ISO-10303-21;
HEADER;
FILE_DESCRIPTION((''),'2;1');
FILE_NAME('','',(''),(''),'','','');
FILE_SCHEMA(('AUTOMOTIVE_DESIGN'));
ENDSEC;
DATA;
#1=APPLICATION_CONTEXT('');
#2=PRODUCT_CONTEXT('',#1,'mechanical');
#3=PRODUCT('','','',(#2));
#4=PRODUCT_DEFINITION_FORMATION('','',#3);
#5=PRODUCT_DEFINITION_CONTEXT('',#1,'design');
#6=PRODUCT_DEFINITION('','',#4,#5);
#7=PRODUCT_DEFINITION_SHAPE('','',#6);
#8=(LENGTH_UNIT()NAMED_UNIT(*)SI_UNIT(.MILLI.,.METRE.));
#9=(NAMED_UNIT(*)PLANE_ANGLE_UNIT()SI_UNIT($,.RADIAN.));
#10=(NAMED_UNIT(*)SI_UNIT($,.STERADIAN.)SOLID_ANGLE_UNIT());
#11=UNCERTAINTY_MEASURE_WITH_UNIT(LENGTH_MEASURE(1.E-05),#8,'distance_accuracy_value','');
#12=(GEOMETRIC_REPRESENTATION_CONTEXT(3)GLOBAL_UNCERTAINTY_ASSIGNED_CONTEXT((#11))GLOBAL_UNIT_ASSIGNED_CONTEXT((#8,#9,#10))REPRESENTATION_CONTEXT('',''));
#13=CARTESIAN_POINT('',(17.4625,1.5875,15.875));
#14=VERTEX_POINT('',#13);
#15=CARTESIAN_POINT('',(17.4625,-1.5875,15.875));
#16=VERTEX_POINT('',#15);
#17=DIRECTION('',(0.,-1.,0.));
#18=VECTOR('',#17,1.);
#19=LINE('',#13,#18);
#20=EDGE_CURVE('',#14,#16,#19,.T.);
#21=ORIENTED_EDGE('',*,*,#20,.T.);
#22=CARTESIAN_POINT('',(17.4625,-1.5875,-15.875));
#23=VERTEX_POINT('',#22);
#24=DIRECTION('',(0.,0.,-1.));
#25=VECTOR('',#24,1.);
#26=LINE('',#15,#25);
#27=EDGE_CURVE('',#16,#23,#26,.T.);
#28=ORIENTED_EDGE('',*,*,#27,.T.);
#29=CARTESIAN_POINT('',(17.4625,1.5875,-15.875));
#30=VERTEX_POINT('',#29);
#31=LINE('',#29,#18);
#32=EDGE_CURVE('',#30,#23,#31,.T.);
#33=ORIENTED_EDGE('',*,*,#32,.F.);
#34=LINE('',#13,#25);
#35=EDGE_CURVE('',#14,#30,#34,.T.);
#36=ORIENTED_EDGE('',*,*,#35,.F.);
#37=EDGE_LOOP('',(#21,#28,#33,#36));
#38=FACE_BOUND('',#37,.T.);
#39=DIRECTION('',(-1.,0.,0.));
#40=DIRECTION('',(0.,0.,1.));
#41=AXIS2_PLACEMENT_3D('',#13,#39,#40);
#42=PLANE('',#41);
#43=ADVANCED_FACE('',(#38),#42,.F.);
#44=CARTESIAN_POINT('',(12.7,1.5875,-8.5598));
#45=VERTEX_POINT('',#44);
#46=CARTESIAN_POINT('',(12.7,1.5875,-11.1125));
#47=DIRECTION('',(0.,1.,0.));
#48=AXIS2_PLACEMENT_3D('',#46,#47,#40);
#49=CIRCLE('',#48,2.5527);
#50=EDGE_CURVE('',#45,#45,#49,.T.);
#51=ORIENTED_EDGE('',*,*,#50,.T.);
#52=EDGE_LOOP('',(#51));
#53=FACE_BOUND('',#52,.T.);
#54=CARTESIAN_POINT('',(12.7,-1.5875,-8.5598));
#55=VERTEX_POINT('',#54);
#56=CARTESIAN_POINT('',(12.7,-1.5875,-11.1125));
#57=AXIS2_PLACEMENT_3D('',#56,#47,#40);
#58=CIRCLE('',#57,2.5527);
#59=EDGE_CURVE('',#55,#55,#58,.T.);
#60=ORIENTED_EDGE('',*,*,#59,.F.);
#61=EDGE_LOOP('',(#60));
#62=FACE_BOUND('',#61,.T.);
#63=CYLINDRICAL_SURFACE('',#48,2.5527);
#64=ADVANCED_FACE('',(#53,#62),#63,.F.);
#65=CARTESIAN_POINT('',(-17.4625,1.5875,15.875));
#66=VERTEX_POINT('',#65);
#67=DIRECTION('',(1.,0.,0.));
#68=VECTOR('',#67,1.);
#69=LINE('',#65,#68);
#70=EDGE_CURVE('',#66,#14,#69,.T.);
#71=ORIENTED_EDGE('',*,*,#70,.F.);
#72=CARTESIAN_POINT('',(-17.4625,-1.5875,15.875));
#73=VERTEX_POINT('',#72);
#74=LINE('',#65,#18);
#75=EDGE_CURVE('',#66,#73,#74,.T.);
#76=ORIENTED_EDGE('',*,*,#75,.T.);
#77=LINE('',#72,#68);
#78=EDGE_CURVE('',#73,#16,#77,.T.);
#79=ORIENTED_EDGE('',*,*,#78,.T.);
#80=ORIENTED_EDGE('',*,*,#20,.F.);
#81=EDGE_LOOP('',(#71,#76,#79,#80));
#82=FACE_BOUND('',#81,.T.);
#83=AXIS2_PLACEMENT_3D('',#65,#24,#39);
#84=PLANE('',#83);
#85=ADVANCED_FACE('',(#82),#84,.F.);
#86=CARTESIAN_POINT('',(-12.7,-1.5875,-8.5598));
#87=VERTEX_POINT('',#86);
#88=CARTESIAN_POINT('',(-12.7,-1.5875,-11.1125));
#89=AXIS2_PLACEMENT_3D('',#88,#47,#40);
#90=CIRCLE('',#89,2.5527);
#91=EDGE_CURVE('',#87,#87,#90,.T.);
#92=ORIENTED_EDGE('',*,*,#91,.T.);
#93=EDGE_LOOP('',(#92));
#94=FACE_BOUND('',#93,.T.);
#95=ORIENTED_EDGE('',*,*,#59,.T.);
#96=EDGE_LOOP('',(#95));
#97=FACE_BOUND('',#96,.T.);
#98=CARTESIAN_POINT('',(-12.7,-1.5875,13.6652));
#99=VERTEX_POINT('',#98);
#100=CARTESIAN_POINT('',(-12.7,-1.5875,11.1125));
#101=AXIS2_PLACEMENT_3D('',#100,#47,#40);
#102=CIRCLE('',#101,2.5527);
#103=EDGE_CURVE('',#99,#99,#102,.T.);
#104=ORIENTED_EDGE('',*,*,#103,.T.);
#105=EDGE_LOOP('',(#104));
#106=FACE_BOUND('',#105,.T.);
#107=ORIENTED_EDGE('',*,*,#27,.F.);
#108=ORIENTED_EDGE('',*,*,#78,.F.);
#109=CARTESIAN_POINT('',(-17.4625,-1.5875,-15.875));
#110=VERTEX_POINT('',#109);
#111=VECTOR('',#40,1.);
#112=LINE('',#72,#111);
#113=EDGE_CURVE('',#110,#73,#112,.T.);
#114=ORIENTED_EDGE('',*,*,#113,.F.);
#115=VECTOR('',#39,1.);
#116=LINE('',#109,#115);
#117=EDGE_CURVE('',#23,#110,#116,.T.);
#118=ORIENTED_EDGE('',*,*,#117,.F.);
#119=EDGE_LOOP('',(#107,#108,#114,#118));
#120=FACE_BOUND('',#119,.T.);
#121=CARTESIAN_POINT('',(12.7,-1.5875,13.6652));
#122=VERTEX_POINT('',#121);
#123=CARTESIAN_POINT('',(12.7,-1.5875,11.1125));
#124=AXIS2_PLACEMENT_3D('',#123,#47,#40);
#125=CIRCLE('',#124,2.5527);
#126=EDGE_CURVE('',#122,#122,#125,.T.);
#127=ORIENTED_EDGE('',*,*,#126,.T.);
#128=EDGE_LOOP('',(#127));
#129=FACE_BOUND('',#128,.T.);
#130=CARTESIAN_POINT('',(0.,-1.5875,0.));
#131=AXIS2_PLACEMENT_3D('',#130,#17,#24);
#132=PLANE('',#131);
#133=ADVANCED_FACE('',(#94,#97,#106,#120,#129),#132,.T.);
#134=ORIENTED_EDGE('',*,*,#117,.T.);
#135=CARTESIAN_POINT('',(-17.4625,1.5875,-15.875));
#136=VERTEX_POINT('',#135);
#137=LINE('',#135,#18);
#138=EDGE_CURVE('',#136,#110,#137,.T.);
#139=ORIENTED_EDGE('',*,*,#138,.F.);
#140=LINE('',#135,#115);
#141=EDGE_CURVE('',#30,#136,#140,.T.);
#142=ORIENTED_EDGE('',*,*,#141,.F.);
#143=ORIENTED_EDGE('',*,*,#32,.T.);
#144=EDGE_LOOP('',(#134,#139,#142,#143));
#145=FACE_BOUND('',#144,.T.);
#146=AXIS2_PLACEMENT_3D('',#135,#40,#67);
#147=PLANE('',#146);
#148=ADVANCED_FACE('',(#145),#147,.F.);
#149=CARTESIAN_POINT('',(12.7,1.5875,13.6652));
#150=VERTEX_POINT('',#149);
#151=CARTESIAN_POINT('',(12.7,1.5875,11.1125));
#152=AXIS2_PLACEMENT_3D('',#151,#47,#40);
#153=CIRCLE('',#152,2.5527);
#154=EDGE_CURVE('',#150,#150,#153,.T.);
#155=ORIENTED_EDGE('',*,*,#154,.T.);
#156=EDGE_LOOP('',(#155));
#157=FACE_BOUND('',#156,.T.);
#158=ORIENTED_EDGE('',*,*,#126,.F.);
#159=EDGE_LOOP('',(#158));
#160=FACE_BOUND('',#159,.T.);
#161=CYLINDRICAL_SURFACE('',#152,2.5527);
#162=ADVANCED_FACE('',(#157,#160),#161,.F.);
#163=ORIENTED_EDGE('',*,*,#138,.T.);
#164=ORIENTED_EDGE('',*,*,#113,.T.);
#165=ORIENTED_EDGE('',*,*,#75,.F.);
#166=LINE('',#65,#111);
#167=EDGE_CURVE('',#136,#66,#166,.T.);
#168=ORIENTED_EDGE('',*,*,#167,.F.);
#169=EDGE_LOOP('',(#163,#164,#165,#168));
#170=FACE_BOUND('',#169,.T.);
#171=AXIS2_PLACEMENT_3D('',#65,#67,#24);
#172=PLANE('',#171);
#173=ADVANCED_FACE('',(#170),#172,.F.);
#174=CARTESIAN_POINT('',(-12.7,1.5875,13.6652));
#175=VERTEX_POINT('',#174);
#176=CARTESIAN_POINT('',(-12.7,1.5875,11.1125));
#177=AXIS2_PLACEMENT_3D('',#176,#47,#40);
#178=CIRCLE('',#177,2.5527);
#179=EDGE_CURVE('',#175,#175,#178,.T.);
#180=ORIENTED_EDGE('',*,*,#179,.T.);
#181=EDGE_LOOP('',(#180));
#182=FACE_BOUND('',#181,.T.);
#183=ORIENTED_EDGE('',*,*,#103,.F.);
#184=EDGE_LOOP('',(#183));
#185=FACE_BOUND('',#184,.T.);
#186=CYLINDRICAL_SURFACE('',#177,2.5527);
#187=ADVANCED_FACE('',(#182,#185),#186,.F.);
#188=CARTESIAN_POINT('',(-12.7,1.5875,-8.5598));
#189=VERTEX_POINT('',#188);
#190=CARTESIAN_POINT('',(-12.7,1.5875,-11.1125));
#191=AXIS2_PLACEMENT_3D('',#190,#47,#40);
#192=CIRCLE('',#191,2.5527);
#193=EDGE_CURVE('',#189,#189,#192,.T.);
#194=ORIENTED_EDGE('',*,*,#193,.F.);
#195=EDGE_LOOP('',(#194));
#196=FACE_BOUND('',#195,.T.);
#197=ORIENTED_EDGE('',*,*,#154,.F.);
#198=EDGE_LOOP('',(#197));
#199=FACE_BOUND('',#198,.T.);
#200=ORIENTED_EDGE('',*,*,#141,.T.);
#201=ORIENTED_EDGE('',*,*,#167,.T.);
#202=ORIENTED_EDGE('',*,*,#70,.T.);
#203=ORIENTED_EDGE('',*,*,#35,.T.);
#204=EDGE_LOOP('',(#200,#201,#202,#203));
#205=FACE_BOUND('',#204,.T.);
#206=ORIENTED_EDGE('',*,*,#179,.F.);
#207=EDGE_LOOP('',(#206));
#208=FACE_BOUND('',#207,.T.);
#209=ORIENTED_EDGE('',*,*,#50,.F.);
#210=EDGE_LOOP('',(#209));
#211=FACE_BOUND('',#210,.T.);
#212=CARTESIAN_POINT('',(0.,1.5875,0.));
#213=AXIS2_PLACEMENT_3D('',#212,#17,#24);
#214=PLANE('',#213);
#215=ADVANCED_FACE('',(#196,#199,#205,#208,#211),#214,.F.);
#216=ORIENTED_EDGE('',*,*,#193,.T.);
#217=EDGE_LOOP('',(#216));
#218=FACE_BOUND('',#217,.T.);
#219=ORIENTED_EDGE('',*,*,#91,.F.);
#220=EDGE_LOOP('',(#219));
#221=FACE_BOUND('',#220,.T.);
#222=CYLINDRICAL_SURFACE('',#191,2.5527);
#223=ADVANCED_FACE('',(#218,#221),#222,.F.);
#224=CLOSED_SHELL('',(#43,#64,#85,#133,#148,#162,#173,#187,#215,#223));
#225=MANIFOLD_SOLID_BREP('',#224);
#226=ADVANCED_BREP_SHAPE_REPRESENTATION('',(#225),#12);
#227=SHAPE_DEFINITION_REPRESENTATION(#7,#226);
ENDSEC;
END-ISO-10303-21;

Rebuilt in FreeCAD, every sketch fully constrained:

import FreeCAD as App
import Part
import Sketcher
Q = App.Units.Quantity

doc = App.newDocument("Part")
params = doc.addObject("Spreadsheet::Sheet", "Params")
for row, (alias, value) in enumerate([
    ("sketch1_height", "1.25 in"),
    ("sketch1_width", "1.375 in"),
    ("pad1_length", "0.125 in"),
    ("sketch2_diameter", "0.201 in"),
    ("hole_diameter", "0.201 in"),
], start=1):
    params.set(f"A{row}", alias)
    params.set(f"B{row}", "=" + value)
    params.setAlias(f"B{row}", alias)

body = doc.addObject("PartDesign::Body", "Body")

# Sketch on XZ plane
sketch1 = body.newObject("Sketcher::SketchObject", "Sketch")
sketch1.AttachmentSupport = (doc.getObject("XZ_Plane"), [""])
sketch1.MapMode = "FlatFace"
sketch1.addGeometry([
    Part.LineSegment(App.Vector(-17, -16, 0), App.Vector(-17, 16, 0)),
    Part.LineSegment(App.Vector(-17, 16, 0), App.Vector(17, 16, 0)),
    Part.LineSegment(App.Vector(17, 16, 0), App.Vector(17, -16, 0)),
    Part.LineSegment(App.Vector(17, -16, 0), App.Vector(-17, -16, 0)),
], False)
sketch1.addConstraint([
    Sketcher.Constraint("Coincident", 0, 2, 1, 1),
    Sketcher.Constraint("Coincident", 1, 2, 2, 1),
    Sketcher.Constraint("Coincident", 2, 2, 3, 1),
    Sketcher.Constraint("Coincident", 3, 2, 0, 1),
    Sketcher.Constraint("Vertical", 0),
    Sketcher.Constraint("Horizontal", 1),
    Sketcher.Constraint("Vertical", 2),
    Sketcher.Constraint("Horizontal", 3),
    Sketcher.Constraint("Symmetric", 0, 2, 2, 2, -1, 1),
    Sketcher.Constraint("DistanceY", 0, 1, 0, 2, Q("1.25 in")),
    Sketcher.Constraint("DistanceX", 1, 1, 1, 2, Q("1.375 in")),
])
sketch1.setExpression("Constraints[9]", "Params.sketch1_height")
sketch1.setExpression("Constraints[10]", "Params.sketch1_width")
pad1 = body.newObject("PartDesign::Pad", "Pad")
pad1.Profile = sketch1
pad1.setExpression("Length", "Params.pad1_length")
pad1.Midplane = True

# Sketch on XZ plane
sketch2 = body.newObject("Sketcher::SketchObject", "Sketch001")
sketch2.AttachmentSupport = (doc.getObject("XZ_Plane"), [""])
sketch2.MapMode = "FlatFace"
sketch2.AttachmentOffset = App.Placement(App.Vector(0, 0, -0.0625 * 25.4), App.Rotation())
sketch2.addGeometry([
    Part.Circle(App.Vector(-12.7, -11.1, 0), App.Vector(0, 0, 1), 2.6),
    Part.Circle(App.Vector(12.7, -11.1, 0), App.Vector(0, 0, 1), 2.6),
    Part.Circle(App.Vector(12.7, 11.1, 0), App.Vector(0, 0, 1), 2.6),
    Part.Circle(App.Vector(-12.7, 11.1, 0), App.Vector(0, 0, 1), 2.6),
], False)
sketch2.addConstraint([
    Sketcher.Constraint("Equal", 0, 1),
    Sketcher.Constraint("Equal", 1, 2),
    Sketcher.Constraint("Equal", 2, 3),
    Sketcher.Constraint("Symmetric", 0, 3, 2, 3, -1, 1),
    Sketcher.Constraint("Symmetric", 1, 3, 3, 3, -1, 1),
    Sketcher.Constraint("Symmetric", 0, 3, 1, 3, -2),
    Sketcher.Constraint("Diameter", 0, Q("0.201 in")),
    Sketcher.Constraint("DistanceX", 0, 3, 1, 3, Q("1 in")),
    Sketcher.Constraint("DistanceY", 0, 3, -1, 1, Q("0.4375 in")),
])
sketch2.setExpression("Constraints[6]", "Params.sketch2_diameter")
doc.recompute()
hole = body.newObject("PartDesign::Hole", "Hole")
hole.Profile = sketch2
hole.ThreadType = "None"
hole.setExpression("Diameter", "Params.hole_diameter")
hole.DepthType = "ThroughAll"
hole.Reversed = True

doc.recompute()
